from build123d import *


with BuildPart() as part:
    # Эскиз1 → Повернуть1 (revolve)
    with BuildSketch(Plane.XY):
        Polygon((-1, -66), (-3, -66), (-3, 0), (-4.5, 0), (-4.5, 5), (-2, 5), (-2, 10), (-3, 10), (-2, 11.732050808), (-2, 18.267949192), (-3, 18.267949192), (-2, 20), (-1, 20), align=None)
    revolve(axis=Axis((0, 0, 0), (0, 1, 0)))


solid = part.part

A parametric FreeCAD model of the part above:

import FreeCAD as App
import Part
import Sketcher

V = App.Vector
Q = App.Units.Quantity


def add_polygon(sketch, points):
    """Adds a closed chain of lines whose ends are joined by coincident constraints."""
    first, n = sketch.GeometryCount, len(points)
    for a, b in zip(points, points[1:] + points[:1]):
        sketch.addGeometry(Part.LineSegment(App.Vector(*a, 0), App.Vector(*b, 0)), False)
    for i in range(n):
        sketch.addConstraint(Sketcher.Constraint("Coincident", first + i, 2, first + (i + 1) % n, 1))

doc = App.newDocument("Part")
params = doc.addObject("Spreadsheet::Sheet", "Params")
for row, (alias, value) in enumerate([
    ("sketch1_width", "2 mm"),
    ("sketch1_height", "86 mm"),
    ("sketch1_height2", "5 mm"),
    ("sketch1_height3", "66 mm"),
    ("sketch1_width2", "2.5 mm"),
    ("revolution_angle", "360 deg"),
], start=1):
    params.set(f"A{row}", alias)
    params.set(f"B{row}", "=" + value)
    params.setAlias(f"B{row}", alias)

body = doc.addObject("PartDesign::Body", "Body")

# Sketch on XY plane
sketch1 = body.newObject("Sketcher::SketchObject", "Sketch")
sketch1.AttachmentSupport = (doc.getObject("XY_Plane"), [""])
sketch1.MapMode = "FlatFace"
add_polygon(sketch1, [(-3, -66), (-1, -66), (-1, 20), (-2, 20), (-3, 18.267949), (-2, 18.267949), (-2, 11.732051), (-3, 10), (-2, 10), (-2, 5), (-4.5, 5), (-4.5, 0), (-3, 0)])  # lines 0-12
sketch1.addConstraint([
    Sketcher.Constraint("Horizontal", 0),
    Sketcher.Constraint("Vertical", 1),
    Sketcher.Constraint("Horizontal", 2),
    Sketcher.Constraint("Horizontal", 4),
    Sketcher.Constraint("Vertical", 5),
    Sketcher.Constraint("Horizontal", 7),
    Sketcher.Constraint("Vertical", 8),
    Sketcher.Constraint("Horizontal", 9),
    Sketcher.Constraint("Vertical", 10),
    Sketcher.Constraint("Horizontal", 11),
    Sketcher.Constraint("Vertical", 12),
    Sketcher.Constraint("PointOnObject", 10, 2, -1),
    Sketcher.Constraint("Parallel", 3, 6),
    Sketcher.Constraint("Vertical", 2, 2, 4, 2),
    Sketcher.Constraint("Vertical", 3, 2, 6, 2),
    Sketcher.Constraint("Vertical", 5, 2, 7, 2),
    Sketcher.Constraint("Vertical", 6, 2, 11, 2),
    Sketcher.Constraint("Equal", 2, 4),
    Sketcher.Constraint("Equal", 8, 10),
    Sketcher.Constraint("DistanceX", 0, 1, 0, 2, 2.0),
    Sketcher.Constraint("DistanceY", 1, 1, 1, 2, 86.0),
    Sketcher.Constraint("DistanceY", 8, 2, 8, 1, 5.0),
    Sketcher.Constraint("DistanceY", 12, 2, 12, 1, 66.0),
    Sketcher.Constraint("Angle", 3, Q("-120 deg")),
    Sketcher.Constraint("DistanceX", 9, 2, 9, 1, 2.5),
    Sketcher.Constraint("DistanceX", 0, 2, -1, 1, 1.0),
])
sketch1.setExpression("Constraints[32]", "Params.sketch1_width")
sketch1.setExpression("Constraints[33]", "Params.sketch1_height")
sketch1.setExpression("Constraints[34]", "Params.sketch1_height2")
sketch1.setExpression("Constraints[35]", "Params.sketch1_height3")
sketch1.setExpression("Constraints[37]", "Params.sketch1_width2")
revolution = body.newObject("PartDesign::Revolution", "Revolution")
revolution.Profile = sketch1
revolution.ReferenceAxis = (sketch1, ["V_Axis"])
revolution.setExpression("Angle", "Params.revolution_angle")

doc.recompute()
